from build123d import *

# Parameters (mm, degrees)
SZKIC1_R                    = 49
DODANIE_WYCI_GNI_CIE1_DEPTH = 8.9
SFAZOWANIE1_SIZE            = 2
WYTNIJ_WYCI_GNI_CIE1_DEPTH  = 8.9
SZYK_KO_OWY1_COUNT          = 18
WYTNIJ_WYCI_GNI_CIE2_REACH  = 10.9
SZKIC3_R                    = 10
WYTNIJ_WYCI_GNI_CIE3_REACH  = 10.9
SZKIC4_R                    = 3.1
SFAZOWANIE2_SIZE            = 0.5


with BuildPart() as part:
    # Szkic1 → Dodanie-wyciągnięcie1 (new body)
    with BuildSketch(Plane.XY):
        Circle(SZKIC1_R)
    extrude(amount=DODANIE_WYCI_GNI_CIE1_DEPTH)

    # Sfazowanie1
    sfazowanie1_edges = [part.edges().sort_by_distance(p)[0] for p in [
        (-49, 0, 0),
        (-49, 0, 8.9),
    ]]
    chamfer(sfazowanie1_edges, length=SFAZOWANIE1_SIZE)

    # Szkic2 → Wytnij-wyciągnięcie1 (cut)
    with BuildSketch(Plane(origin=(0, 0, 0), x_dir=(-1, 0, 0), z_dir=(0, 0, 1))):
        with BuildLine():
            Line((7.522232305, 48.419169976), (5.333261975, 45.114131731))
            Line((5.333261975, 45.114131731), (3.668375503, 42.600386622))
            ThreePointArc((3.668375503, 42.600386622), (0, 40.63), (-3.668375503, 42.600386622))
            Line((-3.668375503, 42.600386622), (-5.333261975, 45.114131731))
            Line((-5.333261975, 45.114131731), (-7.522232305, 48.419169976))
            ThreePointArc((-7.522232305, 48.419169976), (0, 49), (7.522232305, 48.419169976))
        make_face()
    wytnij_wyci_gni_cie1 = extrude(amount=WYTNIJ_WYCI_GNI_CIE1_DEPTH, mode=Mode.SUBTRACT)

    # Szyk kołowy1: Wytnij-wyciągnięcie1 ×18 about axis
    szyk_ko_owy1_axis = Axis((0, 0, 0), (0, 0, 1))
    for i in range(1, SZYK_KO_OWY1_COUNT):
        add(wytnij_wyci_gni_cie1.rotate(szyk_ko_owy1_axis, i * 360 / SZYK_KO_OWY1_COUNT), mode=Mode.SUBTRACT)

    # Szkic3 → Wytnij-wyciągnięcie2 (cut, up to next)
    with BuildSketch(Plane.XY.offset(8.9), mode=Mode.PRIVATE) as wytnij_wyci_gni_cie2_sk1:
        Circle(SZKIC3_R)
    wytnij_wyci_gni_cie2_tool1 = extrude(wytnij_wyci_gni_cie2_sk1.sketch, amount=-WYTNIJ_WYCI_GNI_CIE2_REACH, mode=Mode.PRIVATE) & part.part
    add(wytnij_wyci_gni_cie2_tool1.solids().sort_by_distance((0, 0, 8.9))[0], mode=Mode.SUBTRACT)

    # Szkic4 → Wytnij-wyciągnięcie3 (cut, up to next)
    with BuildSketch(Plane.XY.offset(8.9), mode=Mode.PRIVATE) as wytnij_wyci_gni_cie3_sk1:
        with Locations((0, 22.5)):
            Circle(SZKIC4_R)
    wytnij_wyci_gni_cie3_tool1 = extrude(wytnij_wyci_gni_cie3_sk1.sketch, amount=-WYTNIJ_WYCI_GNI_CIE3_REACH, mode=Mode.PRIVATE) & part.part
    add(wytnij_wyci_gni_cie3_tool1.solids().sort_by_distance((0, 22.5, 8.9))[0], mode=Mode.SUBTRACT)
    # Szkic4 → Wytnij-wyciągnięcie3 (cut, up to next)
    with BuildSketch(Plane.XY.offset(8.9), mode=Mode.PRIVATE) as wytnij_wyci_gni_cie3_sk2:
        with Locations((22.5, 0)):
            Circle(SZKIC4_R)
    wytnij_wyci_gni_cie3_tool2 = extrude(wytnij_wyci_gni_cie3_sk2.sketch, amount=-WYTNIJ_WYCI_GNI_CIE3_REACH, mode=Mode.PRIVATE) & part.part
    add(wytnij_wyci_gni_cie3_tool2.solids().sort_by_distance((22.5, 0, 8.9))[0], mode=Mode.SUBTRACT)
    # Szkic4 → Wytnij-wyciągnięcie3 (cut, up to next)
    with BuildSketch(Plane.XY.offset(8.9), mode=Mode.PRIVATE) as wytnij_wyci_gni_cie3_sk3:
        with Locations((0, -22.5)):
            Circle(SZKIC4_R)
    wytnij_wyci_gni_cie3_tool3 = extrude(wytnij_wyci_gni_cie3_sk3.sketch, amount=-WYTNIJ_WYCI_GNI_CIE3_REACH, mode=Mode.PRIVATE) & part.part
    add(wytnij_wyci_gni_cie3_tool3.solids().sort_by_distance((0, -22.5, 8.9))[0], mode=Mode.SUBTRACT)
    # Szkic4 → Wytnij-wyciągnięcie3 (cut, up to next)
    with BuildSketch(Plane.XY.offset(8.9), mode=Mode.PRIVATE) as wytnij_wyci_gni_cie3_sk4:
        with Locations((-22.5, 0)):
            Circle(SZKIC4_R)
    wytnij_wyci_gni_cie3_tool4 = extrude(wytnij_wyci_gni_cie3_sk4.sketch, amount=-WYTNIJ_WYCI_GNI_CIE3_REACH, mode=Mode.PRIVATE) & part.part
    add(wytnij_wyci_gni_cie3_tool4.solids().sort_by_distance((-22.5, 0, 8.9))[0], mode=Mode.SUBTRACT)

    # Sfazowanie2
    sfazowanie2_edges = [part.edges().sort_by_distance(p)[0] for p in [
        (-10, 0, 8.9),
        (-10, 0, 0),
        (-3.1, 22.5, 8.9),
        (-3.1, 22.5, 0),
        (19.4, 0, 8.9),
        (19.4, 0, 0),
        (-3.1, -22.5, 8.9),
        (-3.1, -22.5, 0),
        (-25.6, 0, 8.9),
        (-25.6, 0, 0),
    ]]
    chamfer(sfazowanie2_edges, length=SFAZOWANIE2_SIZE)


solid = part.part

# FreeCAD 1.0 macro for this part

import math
import FreeCAD as App
import Part
import Sketcher
from FreeCAD import Vector
Q = App.Units.Quantity


def edges_at(feature, points):
    """Names of the edges that pass closest to the given points."""
    edges = feature.Shape.Edges
    near = lambda p: min(range(len(edges)), key=lambda i: edges[i].distToShape(Part.Vertex(*p))[0])
    return sorted({f"Edge{near(p) + 1}" for p in points})

doc = App.newDocument("Part")
params = doc.addObject("Spreadsheet::Sheet", "Params")
for row, (alias, value) in enumerate([
    ("sketch1_diameter", "98 mm"),
    ("pad1_length", "8.9 mm"),
    ("chamfer_size", "2 mm"),
    ("sketch2_radius", "49 mm"),
    ("sketch2_radius2", "4.4 mm"),
    ("pocket1_length", "8.9 mm"),
    ("sketch3_diameter", "20 mm"),
    ("sketch4_diameter", "6.2 mm"),
    ("sketch5_diameter", "6.2 mm"),
    ("sketch6_diameter", "6.2 mm"),
    ("sketch7_diameter", "6.2 mm"),
    ("chamfer2_size", "0.5 mm"),
], start=1):
    params.set(f"A{row}", alias)
    params.set(f"B{row}", "=" + value)
    params.setAlias(f"B{row}", alias)

body = doc.addObject("PartDesign::Body", "Body")

# Sketch on XY plane
sketch1 = body.newObject("Sketcher::SketchObject", "Sketch")
sketch1.AttachmentSupport = (doc.getObject("XY_Plane"), [""])
sketch1.MapMode = "FlatFace"
sketch1.addGeometry(Part.Circle(Vector(0, 0, 0), Vector(0, 0, 1), 49), False)
sketch1.addConstraint([
    Sketcher.Constraint("Coincident", 0, 3, -1, 1),
    Sketcher.Constraint("Diameter", 0, Q("98 mm")),
])
sketch1.setExpression("Constraints[1]", "Params.sketch1_diameter")
pad1 = body.newObject("PartDesign::Pad", "Pad")
pad1.Profile = sketch1
pad1.setExpression("Length", "Params.pad1_length")
doc.recompute()

chamfer = body.newObject("PartDesign::Chamfer", "Chamfer")
chamfer.Base = (pad1, edges_at(pad1, [(-49, 0, 0), (-49, 0, 8.9)]))
chamfer.setExpression("Size", "Params.chamfer_size")

# Sketch on XY plane
sketch2 = body.newObject("Sketcher::SketchObject", "Sketch001")
sketch2.AttachmentSupport = (doc.getObject("XY_Plane"), [""])
sketch2.MapMode = "FlatFace"
sketch2.addGeometry([
    Part.LineSegment(Vector(-5.333262, -45.114132, 0), Vector(-7.522232, -48.41917, 0)),  # 0
    Part.ArcOfCircle(Part.Circle(Vector(0, 0, 0), Vector(0, 0, 1), 49), math.radians(-98.830678), math.radians(-81.169322)),  # 1
    Part.LineSegment(Vector(7.522232, -48.41917, 0), Vector(5.333262, -45.114132, 0)),  # 2
    Part.LineSegment(Vector(5.333262, -45.114132, 0), Vector(3.668376, -42.600387, 0)),  # 3
    Part.ArcOfCircle(Part.Circle(Vector(0, -45.03, 0), Vector(0, 0, 1), 4.4), math.radians(33.517033), math.radians(146.482967)),  # 4
    Part.LineSegment(Vector(-3.668376, -42.600387, 0), Vector(-5.333262, -45.114132, 0)),  # 5
], False)
sketch2.addConstraint([
    Sketcher.Constraint("Coincident", 0, 2, 1, 1),
    Sketcher.Constraint("Coincident", 1, 2, 2, 1),
    Sketcher.Constraint("Coincident", 2, 2, 3, 1),
    Sketcher.Constraint("Tangent", 3, 2, 4, 1),
    Sketcher.Constraint("Tangent", 4, 2, 5, 1),
    Sketcher.Constraint("Coincident", 5, 2, 0, 1),
    Sketcher.Constraint("Coincident", 1, 3, -1, 1),
    Sketcher.Constraint("Symmetric", 3, 2, 4, 2, -2),
    Sketcher.Constraint("Parallel", 2, 3),
    Sketcher.Constraint("Parallel", 0, 5),
    Sketcher.Constraint("Horizontal", 2, 2, 5, 2),
    Sketcher.Constraint("Radius", 1, Q("49 mm")),
    Sketcher.Constraint("Radius", 4, Q("4.4 mm")),
    Sketcher.Constraint("DistanceY", 4, 3, -1, 1, Q("45.03 mm")),
    Sketcher.Constraint("Distance", 0, Q("3.964198 mm")),
    Sketcher.Constraint("Distance", 3, Q("3.015089 mm")),
])
sketch2.setExpression("Constraints[11]", "Params.sketch2_radius")
sketch2.setExpression("Constraints[12]", "Params.sketch2_radius2")
pocket1 = body.newObject("PartDesign::Pocket", "Pocket")
pocket1.Profile = sketch2
pocket1.setExpression("Length", "Params.pocket1_length")
pocket1.Reversed = True
doc.recompute()

polarpattern = body.newObject("PartDesign::PolarPattern", "PolarPattern")
polarpattern.Originals = [pocket1]
polarpattern.Axis = (doc.getObject("Z_Axis"), [""])
polarpattern.Angle = 360
polarpattern.Occurrences = 18
body.Tip = polarpattern

# Sketch on XY plane
sketch3 = body.newObject("Sketcher::SketchObject", "Sketch002")
sketch3.AttachmentSupport = (doc.getObject("XY_Plane"), [""])
sketch3.MapMode = "FlatFace"
sketch3.AttachmentOffset = App.Placement(Vector(0, 0, 8.9), App.Rotation())
sketch3.addGeometry(Part.Circle(Vector(0, 0, 0), Vector(0, 0, 1), 10), False)
sketch3.addConstraint([
    Sketcher.Constraint("Coincident", 0, 3, -1, 1),
    Sketcher.Constraint("Diameter", 0, Q("20 mm")),
])
sketch3.setExpression("Constraints[1]", "Params.sketch3_diameter")
pocket2 = body.newObject("PartDesign::Pocket", "Pocket001")
pocket2.Profile = sketch3
pocket2.Type = "UpToFirst"

# Sketch on XY plane
sketch4 = body.newObject("Sketcher::SketchObject", "Sketch003")
sketch4.AttachmentSupport = (doc.getObject("XY_Plane"), [""])
sketch4.MapMode = "FlatFace"
sketch4.AttachmentOffset = App.Placement(Vector(0, 0, 8.9), App.Rotation())
sketch4.addGeometry(Part.Circle(Vector(0, 22.5, 0), Vector(0, 0, 1), 3.1), False)
sketch4.addConstraint([
    Sketcher.Constraint("PointOnObject", 0, 3, -2),
    Sketcher.Constraint("Diameter", 0, Q("6.2 mm")),
    Sketcher.Constraint("DistanceY", -1, 1, 0, 3, Q("22.5 mm")),
])
sketch4.setExpression("Constraints[1]", "Params.sketch4_diameter")
pocket3 = body.newObject("PartDesign::Pocket", "Pocket002")
pocket3.Profile = sketch4
pocket3.Type = "UpToFirst"

# Sketch on XY plane
sketch5 = body.newObject("Sketcher::SketchObject", "Sketch004")
sketch5.AttachmentSupport = (doc.getObject("XY_Plane"), [""])
sketch5.MapMode = "FlatFace"
sketch5.AttachmentOffset = App.Placement(Vector(0, 0, 8.9), App.Rotation())
sketch5.addGeometry(Part.Circle(Vector(22.5, 0, 0), Vector(0, 0, 1), 3.1), False)
sketch5.addConstraint([
    Sketcher.Constraint("PointOnObject", 0, 3, -1),
    Sketcher.Constraint("Diameter", 0, Q("6.2 mm")),
    Sketcher.Constraint("DistanceX", -1, 1, 0, 3, Q("22.5 mm")),
])
sketch5.setExpression("Constraints[1]", "Params.sketch5_diameter")
pocket4 = body.newObject("PartDesign::Pocket", "Pocket003")
pocket4.Profile = sketch5
pocket4.Type = "UpToFirst"

# Sketch on XY plane
sketch6 = body.newObject("Sketcher::SketchObject", "Sketch005")
sketch6.AttachmentSupport = (doc.getObject("XY_Plane"), [""])
sketch6.MapMode = "FlatFace"
sketch6.AttachmentOffset = App.Placement(Vector(0, 0, 8.9), App.Rotation())
sketch6.addGeometry(Part.Circle(Vector(0, -22.5, 0), Vector(0, 0, 1), 3.1), False)
sketch6.addConstraint([
    Sketcher.Constraint("PointOnObject", 0, 3, -2),
    Sketcher.Constraint("Diameter", 0, Q("6.2 mm")),
    Sketcher.Constraint("DistanceY", 0, 3, -1, 1, Q("22.5 mm")),
])
sketch6.setExpression("Constraints[1]", "Params.sketch6_diameter")
pocket5 = body.newObject("PartDesign::Pocket", "Pocket004")
pocket5.Profile = sketch6
pocket5.Type = "UpToFirst"

# Sketch on XY plane
sketch7 = body.newObject("Sketcher::SketchObject", "Sketch006")
sketch7.AttachmentSupport = (doc.getObject("XY_Plane"), [""])
sketch7.MapMode = "FlatFace"
sketch7.AttachmentOffset = App.Placement(Vector(0, 0, 8.9), App.Rotation())
sketch7.addGeometry(Part.Circle(Vector(-22.5, 0, 0), Vector(0, 0, 1), 3.1), False)
sketch7.addConstraint([
    Sketcher.Constraint("PointOnObject", 0, 3, -1),
    Sketcher.Constraint("Diameter", 0, Q("6.2 mm")),
    Sketcher.Constraint("DistanceX", 0, 3, -1, 1, Q("22.5 mm")),
])
sketch7.setExpression("Constraints[1]", "Params.sketch7_diameter")
pocket6 = body.newObject("PartDesign::Pocket", "Pocket005")
pocket6.Profile = sketch7
pocket6.Type = "UpToFirst"
doc.recompute()

chamfer2 = body.newObject("PartDesign::Chamfer", "Chamfer001")
chamfer2.Base = (pocket6, edges_at(pocket6, [
    (-10, 0, 8.9),
    (-10, 0, 0),
    (-3.1, 22.5, 8.9),
    (-3.1, 22.5, 0),
    (19.4, 0, 8.9),
    (19.4, 0, 0),
    (-3.1, -22.5, 8.9),
    (-3.1, -22.5, 0),
    (-25.6, 0, 8.9),
    (-25.6, 0, 0),
]))
chamfer2.setExpression("Size", "Params.chamfer2_size")

doc.recompute()
